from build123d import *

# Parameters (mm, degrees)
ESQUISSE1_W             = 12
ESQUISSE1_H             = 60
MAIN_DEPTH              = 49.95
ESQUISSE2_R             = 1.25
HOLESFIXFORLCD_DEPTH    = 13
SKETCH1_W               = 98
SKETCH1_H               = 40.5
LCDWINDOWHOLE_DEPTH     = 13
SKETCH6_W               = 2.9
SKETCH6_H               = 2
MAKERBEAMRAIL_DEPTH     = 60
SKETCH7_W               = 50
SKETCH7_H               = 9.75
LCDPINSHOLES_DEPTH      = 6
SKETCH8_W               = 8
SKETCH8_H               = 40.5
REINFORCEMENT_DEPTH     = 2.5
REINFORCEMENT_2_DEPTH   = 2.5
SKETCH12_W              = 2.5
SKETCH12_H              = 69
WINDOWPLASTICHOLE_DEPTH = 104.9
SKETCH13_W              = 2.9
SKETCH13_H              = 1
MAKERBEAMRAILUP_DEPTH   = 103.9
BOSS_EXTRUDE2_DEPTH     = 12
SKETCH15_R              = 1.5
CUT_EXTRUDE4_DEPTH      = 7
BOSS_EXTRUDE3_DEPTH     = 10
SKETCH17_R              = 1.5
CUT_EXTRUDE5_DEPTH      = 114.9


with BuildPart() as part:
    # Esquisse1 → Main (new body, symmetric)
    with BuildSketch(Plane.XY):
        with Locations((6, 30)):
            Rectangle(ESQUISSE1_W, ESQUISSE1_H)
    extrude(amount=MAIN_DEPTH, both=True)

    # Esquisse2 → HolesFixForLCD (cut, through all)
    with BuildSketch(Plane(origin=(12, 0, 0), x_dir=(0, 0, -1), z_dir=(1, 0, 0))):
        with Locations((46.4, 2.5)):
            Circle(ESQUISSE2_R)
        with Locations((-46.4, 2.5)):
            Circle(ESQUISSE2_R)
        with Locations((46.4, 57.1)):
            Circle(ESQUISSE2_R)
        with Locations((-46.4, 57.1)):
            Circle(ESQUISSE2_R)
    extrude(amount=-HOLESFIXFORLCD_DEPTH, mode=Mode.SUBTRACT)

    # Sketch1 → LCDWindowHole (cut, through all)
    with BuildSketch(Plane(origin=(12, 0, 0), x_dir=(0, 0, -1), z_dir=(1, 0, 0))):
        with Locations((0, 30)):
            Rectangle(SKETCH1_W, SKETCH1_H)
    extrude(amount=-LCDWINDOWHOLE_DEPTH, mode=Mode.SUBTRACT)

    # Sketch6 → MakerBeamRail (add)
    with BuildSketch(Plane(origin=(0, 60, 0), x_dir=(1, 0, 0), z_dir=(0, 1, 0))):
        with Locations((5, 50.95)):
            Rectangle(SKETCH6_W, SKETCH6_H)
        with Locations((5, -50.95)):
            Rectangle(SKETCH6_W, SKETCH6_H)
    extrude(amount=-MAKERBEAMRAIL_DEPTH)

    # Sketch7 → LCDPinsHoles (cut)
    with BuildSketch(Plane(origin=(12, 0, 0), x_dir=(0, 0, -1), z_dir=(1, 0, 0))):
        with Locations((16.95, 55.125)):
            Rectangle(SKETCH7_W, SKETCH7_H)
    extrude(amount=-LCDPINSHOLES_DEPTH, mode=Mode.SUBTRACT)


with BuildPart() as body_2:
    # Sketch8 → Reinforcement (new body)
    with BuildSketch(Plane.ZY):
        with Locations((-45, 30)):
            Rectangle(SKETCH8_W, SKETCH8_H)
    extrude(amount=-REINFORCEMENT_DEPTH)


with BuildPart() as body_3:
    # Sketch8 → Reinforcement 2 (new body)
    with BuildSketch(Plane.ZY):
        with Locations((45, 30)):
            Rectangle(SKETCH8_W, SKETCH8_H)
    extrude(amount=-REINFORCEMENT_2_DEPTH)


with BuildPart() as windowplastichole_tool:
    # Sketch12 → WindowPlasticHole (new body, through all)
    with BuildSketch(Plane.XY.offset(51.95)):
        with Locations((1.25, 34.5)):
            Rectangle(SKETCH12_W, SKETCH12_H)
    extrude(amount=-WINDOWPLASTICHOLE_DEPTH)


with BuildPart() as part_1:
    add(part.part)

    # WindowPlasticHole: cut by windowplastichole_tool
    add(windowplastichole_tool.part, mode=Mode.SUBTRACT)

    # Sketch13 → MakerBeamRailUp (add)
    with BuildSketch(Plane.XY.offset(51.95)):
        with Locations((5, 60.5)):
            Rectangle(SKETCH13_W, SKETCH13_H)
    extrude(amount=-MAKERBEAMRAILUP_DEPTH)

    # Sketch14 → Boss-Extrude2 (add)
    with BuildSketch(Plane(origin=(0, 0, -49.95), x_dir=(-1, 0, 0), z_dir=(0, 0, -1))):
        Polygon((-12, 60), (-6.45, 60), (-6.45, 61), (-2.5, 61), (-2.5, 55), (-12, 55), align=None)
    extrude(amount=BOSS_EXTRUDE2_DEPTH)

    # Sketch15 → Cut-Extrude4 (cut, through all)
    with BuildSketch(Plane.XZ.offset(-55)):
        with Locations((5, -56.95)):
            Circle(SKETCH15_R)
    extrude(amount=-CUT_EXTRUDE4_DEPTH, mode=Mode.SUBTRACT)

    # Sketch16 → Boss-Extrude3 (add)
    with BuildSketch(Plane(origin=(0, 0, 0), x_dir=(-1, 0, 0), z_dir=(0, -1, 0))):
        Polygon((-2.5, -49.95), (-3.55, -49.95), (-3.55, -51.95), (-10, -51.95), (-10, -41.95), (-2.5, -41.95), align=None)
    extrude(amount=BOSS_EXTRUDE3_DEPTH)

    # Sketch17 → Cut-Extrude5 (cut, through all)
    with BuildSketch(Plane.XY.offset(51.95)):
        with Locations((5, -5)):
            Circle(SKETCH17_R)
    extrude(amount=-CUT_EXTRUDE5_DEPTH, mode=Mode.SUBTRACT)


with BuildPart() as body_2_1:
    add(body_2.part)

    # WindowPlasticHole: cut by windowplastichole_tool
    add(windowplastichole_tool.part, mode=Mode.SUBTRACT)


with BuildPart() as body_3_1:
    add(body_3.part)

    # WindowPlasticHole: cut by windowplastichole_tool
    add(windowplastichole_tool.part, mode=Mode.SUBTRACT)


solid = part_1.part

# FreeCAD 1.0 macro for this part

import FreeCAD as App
import Part
import Sketcher
from FreeCAD import Vector


def add_polygon(sketch, points):
    """Adds a closed chain of lines whose ends are joined by coincident constraints."""
    first, n = sketch.GeometryCount, len(points)
    for a, b in zip(points, points[1:] + points[:1]):
        sketch.addGeometry(Part.LineSegment(App.Vector(*a, 0), App.Vector(*b, 0)), False)
    for i in range(n):
        sketch.addConstraint(Sketcher.Constraint("Coincident", first + i, 2, first + (i + 1) % n, 1))

doc = App.newDocument("Part")
body = doc.addObject("PartDesign::Body", "Body")

sketch1 = body.newObject("Sketcher::SketchObject", "Sketch")
sketch1.AttachmentSupport = (doc.getObject("XY_Plane"), [""])
sketch1.MapMode = "FlatFace"
add_polygon(sketch1, [(0, 60), (0, 0), (12, 0), (12, 60)])
sketch1.addConstraint([
    Sketcher.Constraint("Vertical", 0),
    Sketcher.Constraint("Horizontal", 1),
    Sketcher.Constraint("Vertical", 2),
    Sketcher.Constraint("Horizontal", 3),
    Sketcher.Constraint("Coincident", 0, 2, -1, 1),
    Sketcher.Constraint("DistanceX", 1, 1, 1, 2, 12.0),
    Sketcher.Constraint("DistanceY", 0, 2, 0, 1, 60.0),
])
pad1 = body.newObject("PartDesign::Pad", "Pad")
pad1.Profile = sketch1
pad1.Length = 99.9
pad1.Midplane = True

sketch2 = body.newObject("Sketcher::SketchObject", "Sketch001")
sketch2.AttachmentSupport = (doc.getObject("YZ_Plane"), [""])
sketch2.MapMode = "FlatFace"
sketch2.AttachmentOffset = App.Placement(Vector(0, 0, 12), App.Rotation())
sketch2.addGeometry([
    Part.Circle(Vector(2.5, -46.4, 0), Vector(0, 0, 1), 1.2),
    Part.Circle(Vector(2.5, 46.4, 0), Vector(0, 0, 1), 1.2),
    Part.Circle(Vector(57.1, -46.4, 0), Vector(0, 0, 1), 1.2),
    Part.Circle(Vector(57.1, 46.4, 0), Vector(0, 0, 1), 1.2),
], False)
sketch2.addConstraint([
    Sketcher.Constraint("Equal", 0, 1),
    Sketcher.Constraint("Equal", 1, 2),
    Sketcher.Constraint("Equal", 2, 3),
    Sketcher.Constraint("Symmetric", 0, 3, 1, 3, -1),
    Sketcher.Constraint("Symmetric", 2, 3, 3, 3, -1),
    Sketcher.Constraint("Horizontal", 0, 3, 2, 3),
    Sketcher.Constraint("Diameter", 0, 2.5),
    Sketcher.Constraint("DistanceX", -1, 1, 0, 3, 2.5),
    Sketcher.Constraint("DistanceY", 0, 3, -1, 1, 46.4),
    Sketcher.Constraint("DistanceX", -1, 1, 2, 3, 57.1),
])
pocket1 = body.newObject("PartDesign::Pocket", "Pocket")
pocket1.Profile = sketch2
pocket1.Type = "ThroughAll"

sketch3 = body.newObject("Sketcher::SketchObject", "Sketch002")
sketch3.AttachmentSupport = (doc.getObject("YZ_Plane"), [""])
sketch3.MapMode = "FlatFace"
sketch3.AttachmentOffset = App.Placement(Vector(0, 0, 12), App.Rotation())
add_polygon(sketch3, [(50, 49), (10, 49), (10, -49), (50, -49)])
sketch3.addConstraint([
    Sketcher.Constraint("Horizontal", 0),
    Sketcher.Constraint("Vertical", 1),
    Sketcher.Constraint("Horizontal", 2),
    Sketcher.Constraint("Vertical", 3),
    Sketcher.Constraint("DistanceY", 1, 2, 1, 1, 98.0),
    Sketcher.Constraint("DistanceX", 0, 2, 0, 1, 40.5),
    Sketcher.Constraint("DistanceY", -1, 1, 0, 2, 49.0),
    Sketcher.Constraint("DistanceX", -1, 1, 0, 2, 9.75),
])
pocket2 = body.newObject("PartDesign::Pocket", "Pocket001")
pocket2.Profile = sketch3
pocket2.Type = "ThroughAll"

sketch4 = body.newObject("Sketcher::SketchObject", "Sketch003")
sketch4.AttachmentSupport = (doc.getObject("XZ_Plane"), [""])
sketch4.MapMode = "FlatFace"
sketch4.AttachmentOffset = App.Placement(Vector(0, 0, -60), App.Rotation())
add_polygon(sketch4, [(3.5, -52), (3.5, -50), (6.5, -50), (6.5, -52)])
add_polygon(sketch4, [(3.5, 50), (3.5, 52), (6.5, 52), (6.5, 50)])
sketch4.addConstraint([
    Sketcher.Constraint("Vertical", 0),
    Sketcher.Constraint("Horizontal", 1),
    Sketcher.Constraint("Vertical", 2),
    Sketcher.Constraint("Horizontal", 3),
    Sketcher.Constraint("Vertical", 4),
    Sketcher.Constraint("Horizontal", 5),
    Sketcher.Constraint("Vertical", 6),
    Sketcher.Constraint("Horizontal", 7),
    Sketcher.Constraint("Symmetric", 3, 2, 4, 2, -1),
    Sketcher.Constraint("Symmetric", 1, 2, 6, 2, -1),
    Sketcher.Constraint("DistanceY", 0, 1, 0, 2, 2.0),
    Sketcher.Constraint("DistanceX", 1, 1, 1, 2, 2.9),
    Sketcher.Constraint("DistanceY", 0, 2, 4, 2, 101.9),
    Sketcher.Constraint("DistanceX", -1, 1, 0, 2, 3.55),
])
pad2 = body.newObject("PartDesign::Pad", "Pad001")
pad2.Profile = sketch4
pad2.Length = 60

sketch5 = body.newObject("Sketcher::SketchObject", "Sketch004")
sketch5.AttachmentSupport = (doc.getObject("YZ_Plane"), [""])
sketch5.MapMode = "FlatFace"
sketch5.AttachmentOffset = App.Placement(Vector(0, 0, 12), App.Rotation())
add_polygon(sketch5, [(60, 8), (50, 8), (50, -42), (60, -42)])
sketch5.addConstraint([
    Sketcher.Constraint("Horizontal", 0),
    Sketcher.Constraint("Vertical", 1),
    Sketcher.Constraint("Horizontal", 2),
    Sketcher.Constraint("Vertical", 3),
    Sketcher.Constraint("DistanceY", 1, 2, 1, 1, 50.0),
    Sketcher.Constraint("DistanceX", -1, 1, 2, 2, 60.0),
    Sketcher.Constraint("DistanceX", 0, 2, 0, 1, 9.75),
    Sketcher.Constraint("DistanceY", -1, 1, 0, 2, 8.05),
])
pocket3 = body.newObject("PartDesign::Pocket", "Pocket002")
pocket3.Profile = sketch5
pocket3.Length = 6
body2 = doc.addObject("PartDesign::Body", "Body001")

sketch6 = body2.newObject("Sketcher::SketchObject", "Sketch005")
sketch6.AttachmentSupport = (doc.getObject("YZ_Plane001"), [""])
sketch6.MapMode = "FlatFace"
add_polygon(sketch6, [(50, -49), (10, -49), (10, -41), (50, -41)])
sketch6.addConstraint([
    Sketcher.Constraint("Horizontal", 0),
    Sketcher.Constraint("Vertical", 1),
    Sketcher.Constraint("Horizontal", 2),
    Sketcher.Constraint("Vertical", 3),
    Sketcher.Constraint("DistanceY", 1, 1, 1, 2, 8.0),
    Sketcher.Constraint("DistanceX", 0, 2, 0, 1, 40.5),
    Sketcher.Constraint("DistanceY", 0, 2, -1, 1, 49.0),
    Sketcher.Constraint("DistanceX", -1, 1, 0, 2, 9.75),
])
pad3 = body2.newObject("PartDesign::Pad", "Pad002")
pad3.Profile = sketch6
pad3.Length = 2.5
body3 = doc.addObject("PartDesign::Body", "Body002")

sketch7 = body3.newObject("Sketcher::SketchObject", "Sketch006")
sketch7.AttachmentSupport = (doc.getObject("YZ_Plane002"), [""])
sketch7.MapMode = "FlatFace"
add_polygon(sketch7, [(50, 41), (10, 41), (10, 49), (50, 49)])
sketch7.addConstraint([
    Sketcher.Constraint("Horizontal", 0),
    Sketcher.Constraint("Vertical", 1),
    Sketcher.Constraint("Horizontal", 2),
    Sketcher.Constraint("Vertical", 3),
    Sketcher.Constraint("DistanceY", 1, 1, 1, 2, 8.0),
    Sketcher.Constraint("DistanceX", 0, 2, 0, 1, 40.5),
    Sketcher.Constraint("DistanceY", -1, 1, 0, 2, 41.0),
    Sketcher.Constraint("DistanceX", -1, 1, 0, 2, 9.75),
])
pad4 = body3.newObject("PartDesign::Pad", "Pad003")
pad4.Profile = sketch7
pad4.Length = 2.5
body4 = doc.addObject("PartDesign::Body", "Body003")

sketch8 = body4.newObject("Sketcher::SketchObject", "Sketch007")
sketch8.AttachmentSupport = (doc.getObject("XY_Plane003"), [""])
sketch8.MapMode = "FlatFace"
sketch8.AttachmentOffset = App.Placement(Vector(0, 0, 51.95), App.Rotation())
add_polygon(sketch8, [(0, 69), (0, 0), (2.5, 0), (2.5, 69)])
sketch8.addConstraint([
    Sketcher.Constraint("Vertical", 0),
    Sketcher.Constraint("Horizontal", 1),
    Sketcher.Constraint("Vertical", 2),
    Sketcher.Constraint("Horizontal", 3),
    Sketcher.Constraint("Coincident", 0, 2, -1, 1),
    Sketcher.Constraint("DistanceY", 0, 2, 0, 1, 69.0),
    Sketcher.Constraint("DistanceX", 1, 1, 1, 2, 2.5),
])
pad5 = body4.newObject("PartDesign::Pad", "Pad004")
pad5.Profile = sketch8
pad5.Length = 104.9
pad5.Reversed = True
doc.recompute()

body5 = doc.addObject("PartDesign::Body", "Body004")
body5.BaseFeature = body4
boolean = body.newObject("PartDesign::Boolean", "Boolean")
boolean.Type = "Cut"
boolean.addObjects([body5])
doc.recompute()

sketch9 = body.newObject("Sketcher::SketchObject", "Sketch008")
sketch9.AttachmentSupport = (doc.getObject("XY_Plane"), [""])
sketch9.MapMode = "FlatFace"
sketch9.AttachmentOffset = App.Placement(Vector(0, 0, 51.95), App.Rotation())
add_polygon(sketch9, [(3.5, 61), (3.5, 60), (6.5, 60), (6.5, 61)])
sketch9.addConstraint([
    Sketcher.Constraint("Vertical", 0),
    Sketcher.Constraint("Horizontal", 1),
    Sketcher.Constraint("Vertical", 2),
    Sketcher.Constraint("Horizontal", 3),
    Sketcher.Constraint("DistanceY", 0, 2, 0, 1, 1.0),
    Sketcher.Constraint("DistanceX", 1, 1, 1, 2, 2.9),
    Sketcher.Constraint("DistanceY", -1, 1, 0, 2, 60.0),
    Sketcher.Constraint("DistanceX", -1, 1, 0, 2, 3.55),
])
pad6 = body.newObject("PartDesign::Pad", "Pad005")
pad6.Profile = sketch9
pad6.Length = 103.9
pad6.Reversed = True

sketch10 = body.newObject("Sketcher::SketchObject", "Sketch009")
sketch10.AttachmentSupport = (doc.getObject("XY_Plane"), [""])
sketch10.MapMode = "FlatFace"
sketch10.AttachmentOffset = App.Placement(Vector(0, 0, -49.95), App.Rotation())
add_polygon(sketch10, [(6.5, 60), (12, 60), (12, 55), (2.5, 55), (2.5, 61), (6.5, 61)])
sketch10.addConstraint([
    Sketcher.Constraint("Horizontal", 0),
    Sketcher.Constraint("Vertical", 1),
    Sketcher.Constraint("Horizontal", 2),
    Sketcher.Constraint("Vertical", 3),
    Sketcher.Constraint("Horizontal", 4),
    Sketcher.Constraint("Vertical", 5),
    Sketcher.Constraint("DistanceY", 1, 2, 1, 1, 5.0),
    Sketcher.Constraint("DistanceY", 3, 1, 3, 2, 6.0),
    Sketcher.Constraint("DistanceX", 2, 2, 2, 1, 9.5),
    Sketcher.Constraint("DistanceX", -1, 1, 0, 2, 12.0),
    Sketcher.Constraint("DistanceY", -1, 1, 0, 2, 60.0),
    Sketcher.Constraint("DistanceX", 0, 1, 0, 2, 5.55),
])
pad7 = body.newObject("PartDesign::Pad", "Pad006")
pad7.Profile = sketch10
pad7.Length = 12
pad7.Reversed = True

sketch11 = body.newObject("Sketcher::SketchObject", "Sketch010")
sketch11.AttachmentSupport = (doc.getObject("XZ_Plane"), [""])
sketch11.MapMode = "FlatFace"
sketch11.AttachmentOffset = App.Placement(Vector(0, 0, -55), App.Rotation())
sketch11.addGeometry(Part.Circle(Vector(5, -57, 0), Vector(0, 0, 1), 1.5), False)
sketch11.addConstraint([
    Sketcher.Constraint("Diameter", 0, 3.0),
    Sketcher.Constraint("DistanceX", -1, 1, 0, 3, 5.0),
    Sketcher.Constraint("DistanceY", 0, 3, -1, 1, 56.95),
])
pocket4 = body.newObject("PartDesign::Pocket", "Pocket003")
pocket4.Profile = sketch11
pocket4.Type = "ThroughAll"

sketch12 = body.newObject("Sketcher::SketchObject", "Sketch011")
sketch12.AttachmentSupport = (doc.getObject("XZ_Plane"), [""])
sketch12.MapMode = "FlatFace"
add_polygon(sketch12, [(3.5, 50), (2.5, 50), (2.5, 42), (10, 42), (10, 52), (3.5, 52)])
sketch12.addConstraint([
    Sketcher.Constraint("Horizontal", 0),
    Sketcher.Constraint("Vertical", 1),
    Sketcher.Constraint("Horizontal", 2),
    Sketcher.Constraint("Vertical", 3),
    Sketcher.Constraint("Horizontal", 4),
    Sketcher.Constraint("Vertical", 5),
    Sketcher.Constraint("DistanceY", 1, 2, 1, 1, 8.0),
    Sketcher.Constraint("DistanceY", 3, 1, 3, 2, 10.0),
    Sketcher.Constraint("DistanceX", 2, 1, 2, 2, 7.5),
    Sketcher.Constraint("DistanceX", -1, 1, 2, 2, 10.0),
    Sketcher.Constraint("DistanceX", 0, 2, 0, 1, 1.05),
    Sketcher.Constraint("DistanceY", -1, 1, 0, 2, 49.95),
])
pad8 = body.newObject("PartDesign::Pad", "Pad007")
pad8.Profile = sketch12
pad8.Length = 10

sketch13 = body.newObject("Sketcher::SketchObject", "Sketch012")
sketch13.AttachmentSupport = (doc.getObject("XY_Plane"), [""])
sketch13.MapMode = "FlatFace"
sketch13.AttachmentOffset = App.Placement(Vector(0, 0, 51.95), App.Rotation())
sketch13.addGeometry(Part.Circle(Vector(5, -5, 0), Vector(0, 0, 1), 1.5), False)
sketch13.addConstraint([
    Sketcher.Constraint("Diameter", 0, 3.0),
    Sketcher.Constraint("DistanceX", -1, 1, 0, 3, 5.0),
    Sketcher.Constraint("DistanceY", 0, 3, -1, 1, 5.0),
])
pocket5 = body.newObject("PartDesign::Pocket", "Pocket004")
pocket5.Profile = sketch13
pocket5.Type = "ThroughAll"
doc.recompute()

body6 = doc.addObject("PartDesign::Body", "Body005")
body6.BaseFeature = body4
boolean2 = body2.newObject("PartDesign::Boolean", "Boolean001")
boolean2.Type = "Cut"
boolean2.addObjects([body6])
doc.recompute()

boolean3 = body3.newObject("PartDesign::Boolean", "Boolean002")
boolean3.Type = "Cut"
boolean3.addObjects([body4])

doc.recompute()
